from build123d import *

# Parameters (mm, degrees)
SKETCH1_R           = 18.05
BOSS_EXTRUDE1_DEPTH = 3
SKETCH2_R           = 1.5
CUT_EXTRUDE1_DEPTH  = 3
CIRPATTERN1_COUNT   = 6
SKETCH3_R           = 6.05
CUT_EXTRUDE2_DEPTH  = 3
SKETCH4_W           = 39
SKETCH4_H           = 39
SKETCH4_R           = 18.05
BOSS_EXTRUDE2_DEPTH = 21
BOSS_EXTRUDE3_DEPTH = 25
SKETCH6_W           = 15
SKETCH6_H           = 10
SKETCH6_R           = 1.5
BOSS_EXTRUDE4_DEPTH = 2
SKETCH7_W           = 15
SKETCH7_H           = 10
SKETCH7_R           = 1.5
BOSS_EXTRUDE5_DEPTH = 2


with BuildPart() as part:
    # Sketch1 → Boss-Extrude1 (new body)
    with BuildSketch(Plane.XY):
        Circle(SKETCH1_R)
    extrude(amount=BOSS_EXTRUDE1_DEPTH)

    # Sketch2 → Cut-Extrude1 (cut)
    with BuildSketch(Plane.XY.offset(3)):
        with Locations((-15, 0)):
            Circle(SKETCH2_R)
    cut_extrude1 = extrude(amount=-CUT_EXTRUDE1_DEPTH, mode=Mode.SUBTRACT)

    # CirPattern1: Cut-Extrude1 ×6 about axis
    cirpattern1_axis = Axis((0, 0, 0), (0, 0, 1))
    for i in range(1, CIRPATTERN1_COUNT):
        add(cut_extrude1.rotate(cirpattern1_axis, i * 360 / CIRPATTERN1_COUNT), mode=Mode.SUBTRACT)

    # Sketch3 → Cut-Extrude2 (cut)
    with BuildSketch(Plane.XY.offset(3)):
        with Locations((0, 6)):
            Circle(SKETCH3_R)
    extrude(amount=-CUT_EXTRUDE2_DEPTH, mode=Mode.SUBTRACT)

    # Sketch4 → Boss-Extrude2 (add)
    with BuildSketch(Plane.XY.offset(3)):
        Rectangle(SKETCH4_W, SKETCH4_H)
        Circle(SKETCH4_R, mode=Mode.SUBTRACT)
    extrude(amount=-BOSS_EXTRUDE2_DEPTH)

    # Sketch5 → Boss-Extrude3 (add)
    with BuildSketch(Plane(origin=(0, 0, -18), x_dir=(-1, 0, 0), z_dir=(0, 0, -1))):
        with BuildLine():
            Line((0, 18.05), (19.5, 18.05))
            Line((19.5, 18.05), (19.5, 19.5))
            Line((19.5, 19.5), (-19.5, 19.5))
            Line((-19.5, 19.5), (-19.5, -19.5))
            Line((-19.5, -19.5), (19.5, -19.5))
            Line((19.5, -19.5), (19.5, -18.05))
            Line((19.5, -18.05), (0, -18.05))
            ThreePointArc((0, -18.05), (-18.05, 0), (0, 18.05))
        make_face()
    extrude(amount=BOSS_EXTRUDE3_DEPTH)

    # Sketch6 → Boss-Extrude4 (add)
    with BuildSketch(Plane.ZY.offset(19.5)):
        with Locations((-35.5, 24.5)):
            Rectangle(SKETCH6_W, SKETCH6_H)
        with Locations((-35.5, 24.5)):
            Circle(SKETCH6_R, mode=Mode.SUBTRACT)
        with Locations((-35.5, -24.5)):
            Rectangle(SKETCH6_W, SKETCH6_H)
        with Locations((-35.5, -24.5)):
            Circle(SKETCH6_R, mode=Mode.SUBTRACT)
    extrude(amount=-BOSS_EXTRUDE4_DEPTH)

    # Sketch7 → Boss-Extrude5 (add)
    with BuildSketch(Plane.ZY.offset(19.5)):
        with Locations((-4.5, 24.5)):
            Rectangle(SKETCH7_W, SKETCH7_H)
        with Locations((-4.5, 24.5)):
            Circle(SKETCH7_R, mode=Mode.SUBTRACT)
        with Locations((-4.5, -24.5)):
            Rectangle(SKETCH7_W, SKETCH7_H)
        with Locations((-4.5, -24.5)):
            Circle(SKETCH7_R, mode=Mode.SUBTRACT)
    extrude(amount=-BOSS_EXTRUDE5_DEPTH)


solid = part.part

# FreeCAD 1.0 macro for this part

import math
import FreeCAD as App
import Part
import Sketcher
from FreeCAD import Vector
Q = App.Units.Quantity


def add_polygon(sketch, points):
    """Adds a closed chain of lines whose ends are joined by coincident constraints."""
    first, n = sketch.GeometryCount, len(points)
    for a, b in zip(points, points[1:] + points[:1]):
        sketch.addGeometry(Part.LineSegment(App.Vector(*a, 0), App.Vector(*b, 0)), False)
    for i in range(n):
        sketch.addConstraint(Sketcher.Constraint("Coincident", first + i, 2, first + (i + 1) % n, 1))

doc = App.newDocument("Part")
body = doc.addObject("PartDesign::Body", "Body")

# Sketch on XY plane
sketch1 = doc.addObject("Sketcher::SketchObject", "Sketch")
body.addObject(sketch1)
sketch1.AttachmentSupport = (doc.XY_Plane, [""])
sketch1.MapMode = "FlatFace"
sketch1.addGeometry(Part.Circle(Vector(0, 0, 0), Vector(0, 0, 1), 18), False)
sketch1.addConstraint([
    Sketcher.Constraint("Coincident", 0, 3, -1, 1),
    Sketcher.Constraint("Diameter", 0, Q("36.1 mm")),
])
pad1 = doc.addObject("PartDesign::Pad", "Pad")
body.addObject(pad1)
pad1.Profile = sketch1
pad1.Length = 3

# Sketch on XY plane
sketch2 = doc.addObject("Sketcher::SketchObject", "Sketch001")
body.addObject(sketch2)
sketch2.AttachmentSupport = (doc.XY_Plane, [""])
sketch2.MapMode = "FlatFace"
sketch2.AttachmentOffset = App.Placement(Vector(0, 0, 3), App.Rotation())
sketch2.addGeometry(Part.Circle(Vector(-15, 0, 0), Vector(0, 0, 1), 1.5), False)
sketch2.addConstraint([
    Sketcher.Constraint("PointOnObject", 0, 3, -1),
    Sketcher.Constraint("Diameter", 0, Q("3 mm")),
    Sketcher.Constraint("DistanceX", 0, 3, -1, 1, Q("15 mm")),
])
pocket1 = doc.addObject("PartDesign::Pocket", "Pocket")
body.addObject(pocket1)
pocket1.Profile = sketch2
pocket1.Length = 3
doc.recompute()

polarpattern = doc.addObject("PartDesign::PolarPattern", "PolarPattern")
body.addObject(polarpattern)
polarpattern.Originals = [pocket1]
polarpattern.Axis = (doc.Z_Axis, [""])
polarpattern.Angle = 360
polarpattern.Occurrences = 6
body.Tip = polarpattern

# Sketch on XY plane
sketch3 = doc.addObject("Sketcher::SketchObject", "Sketch002")
body.addObject(sketch3)
sketch3.AttachmentSupport = (doc.XY_Plane, [""])
sketch3.MapMode = "FlatFace"
sketch3.AttachmentOffset = App.Placement(Vector(0, 0, 3), App.Rotation())
sketch3.addGeometry(Part.Circle(Vector(0, 6, 0), Vector(0, 0, 1), 6), False)
sketch3.addConstraint([
    Sketcher.Constraint("PointOnObject", 0, 3, -2),
    Sketcher.Constraint("Diameter", 0, Q("12.1 mm")),
    Sketcher.Constraint("DistanceY", -1, 1, 0, 3, Q("6 mm")),
])
pocket2 = doc.addObject("PartDesign::Pocket", "Pocket001")
body.addObject(pocket2)
pocket2.Profile = sketch3
pocket2.Length = 3

# Sketch on XY plane
sketch4 = doc.addObject("Sketcher::SketchObject", "Sketch003")
body.addObject(sketch4)
sketch4.AttachmentSupport = (doc.XY_Plane, [""])
sketch4.MapMode = "FlatFace"
sketch4.AttachmentOffset = App.Placement(Vector(0, 0, 3), App.Rotation())
add_polygon(sketch4, [(-20, 20), (-20, -20), (20, -20), (20, 20)])  # lines 0-3
sketch4.addGeometry(Part.Circle(Vector(0, 0, 0), Vector(0, 0, 1), 18), False)  # 4
sketch4.addConstraint([
    Sketcher.Constraint("Vertical", 0),
    Sketcher.Constraint("Horizontal", 1),
    Sketcher.Constraint("Vertical", 2),
    Sketcher.Constraint("Horizontal", 3),
    Sketcher.Constraint("Coincident", 4, 3, -1, 1),
    Sketcher.Constraint("Symmetric", 0, 2, 2, 2, -1, 1),
    Sketcher.Constraint("Equal", 3, 0),
    Sketcher.Constraint("Diameter", 4, Q("36.1 mm")),
    Sketcher.Constraint("DistanceX", 1, 1, 1, 2, Q("39 mm")),
])
pad2 = doc.addObject("PartDesign::Pad", "Pad001")
body.addObject(pad2)
pad2.Profile = sketch4
pad2.Length = 21
pad2.Reversed = True

# Sketch on XY plane
sketch5 = doc.addObject("Sketcher::SketchObject", "Sketch004")
body.addObject(sketch5)
sketch5.AttachmentSupport = (doc.XY_Plane, [""])
sketch5.MapMode = "FlatFace"
sketch5.AttachmentOffset = App.Placement(Vector(0, 0, -18), App.Rotation())
sketch5.addGeometry([
    Part.LineSegment(Vector(0, 18.1, 0), Vector(-19.5, 18.1, 0)),  # 0
    Part.LineSegment(Vector(-19.5, 18.1, 0), Vector(-19.5, 19.5, 0)),  # 1
    Part.LineSegment(Vector(-19.5, 19.5, 0), Vector(19.5, 19.5, 0)),  # 2
    Part.LineSegment(Vector(19.5, 19.5, 0), Vector(19.5, -19.5, 0)),  # 3
    Part.LineSegment(Vector(19.5, -19.5, 0), Vector(-19.5, -19.5, 0)),  # 4
    Part.LineSegment(Vector(-19.5, -19.5, 0), Vector(-19.5, -18.1, 0)),  # 5
    Part.LineSegment(Vector(-19.5, -18.1, 0), Vector(0, -18.1, 0)),  # 6
    Part.ArcOfCircle(Part.Circle(Vector(0, 0, 0), Vector(0, 0, 1), 18.1), math.radians(-90), math.radians(90)),  # 7
], False)
sketch5.addConstraint([
    Sketcher.Constraint("Coincident", 0, 2, 1, 1),
    Sketcher.Constraint("Coincident", 1, 2, 2, 1),
    Sketcher.Constraint("Coincident", 2, 2, 3, 1),
    Sketcher.Constraint("Coincident", 3, 2, 4, 1),
    Sketcher.Constraint("Coincident", 4, 2, 5, 1),
    Sketcher.Constraint("Coincident", 5, 2, 6, 1),
    Sketcher.Constraint("Tangent", 6, 2, 7, 1),
    Sketcher.Constraint("Tangent", 7, 2, 0, 1),
    Sketcher.Constraint("Horizontal", 0),
    Sketcher.Constraint("Vertical", 1),
    Sketcher.Constraint("Horizontal", 2),
    Sketcher.Constraint("Vertical", 3),
    Sketcher.Constraint("Horizontal", 4),
    Sketcher.Constraint("Vertical", 5),
    Sketcher.Constraint("Horizontal", 6),
    Sketcher.Constraint("Coincident", 7, 3, -1, 1),
    Sketcher.Constraint("Symmetric", 1, 2, 3, 2, -1, 1),
    Sketcher.Constraint("Vertical", 1, 2, 4, 2),
    Sketcher.Constraint("Equal", 4, 3),
    Sketcher.Constraint("DistanceX", 2, 1, 2, 2, Q("39 mm")),
    Sketcher.Constraint("Radius", 7, Q("18.05 mm")),
])
pad3 = doc.addObject("PartDesign::Pad", "Pad002")
body.addObject(pad3)
pad3.Profile = sketch5
pad3.Length = 25
pad3.Reversed = True

# Sketch on YZ plane
sketch6 = doc.addObject("Sketcher::SketchObject", "Sketch005")
body.addObject(sketch6)
sketch6.AttachmentSupport = (doc.YZ_Plane, [""])
sketch6.MapMode = "FlatFace"
sketch6.AttachmentOffset = App.Placement(Vector(0, 0, -19.5), App.Rotation())
add_polygon(sketch6, [(29.5, -43), (19.5, -43), (19.5, -28), (29.5, -28)])  # lines 0-3
sketch6.addGeometry(Part.Circle(Vector(24.5, -35.5, 0), Vector(0, 0, 1), 1.5), False)  # 4
add_polygon(sketch6, [(-19.5, -43), (-29.5, -43), (-29.5, -28), (-19.5, -28)])  # lines 5-8
sketch6.addGeometry(Part.Circle(Vector(-24.5, -35.5, 0), Vector(0, 0, 1), 1.5), False)  # 9
sketch6.addConstraint([
    Sketcher.Constraint("Horizontal", 0),
    Sketcher.Constraint("Vertical", 1),
    Sketcher.Constraint("Horizontal", 2),
    Sketcher.Constraint("Vertical", 3),
    Sketcher.Constraint("Horizontal", 5),
    Sketcher.Constraint("Vertical", 6),
    Sketcher.Constraint("Horizontal", 7),
    Sketcher.Constraint("Vertical", 8),
    Sketcher.Constraint("Equal", 4, 9),
    Sketcher.Constraint("Symmetric", 4, 3, 9, 3, -2),
    Sketcher.Constraint("Symmetric", 3, 2, 5, 2, -2),
    Sketcher.Constraint("Symmetric", 1, 2, 7, 2, -2),
    Sketcher.Constraint("Diameter", 4, Q("3 mm")),
    Sketcher.Constraint("DistanceX", 0, 2, 0, 1, Q("10 mm")),
    Sketcher.Constraint("DistanceY", 1, 1, 1, 2, Q("15 mm")),
    Sketcher.Constraint("DistanceY", 0, 2, -1, 1, Q("43 mm")),
    Sketcher.Constraint("DistanceX", 9, 3, 4, 3, Q("49 mm")),
    Sketcher.Constraint("DistanceX", 0, 2, 4, 3, Q("5 mm")),
    Sketcher.Constraint("DistanceY", 4, 3, -1, 1, Q("35.5 mm")),
])
pad4 = doc.addObject("PartDesign::Pad", "Pad003")
body.addObject(pad4)
pad4.Profile = sketch6
pad4.Length = 2

# Sketch on YZ plane
sketch7 = doc.addObject("Sketcher::SketchObject", "Sketch006")
body.addObject(sketch7)
sketch7.AttachmentSupport = (doc.YZ_Plane, [""])
sketch7.MapMode = "FlatFace"
sketch7.AttachmentOffset = App.Placement(Vector(0, 0, -19.5), App.Rotation())
add_polygon(sketch7, [(29.5, -12), (19.5, -12), (19.5, 3), (29.5, 3)])  # lines 0-3
sketch7.addGeometry(Part.Circle(Vector(24.5, -4.5, 0), Vector(0, 0, 1), 1.5), False)  # 4
add_polygon(sketch7, [(-19.5, -12), (-29.5, -12), (-29.5, 3), (-19.5, 3)])  # lines 5-8
sketch7.addGeometry(Part.Circle(Vector(-24.5, -4.5, 0), Vector(0, 0, 1), 1.5), False)  # 9
sketch7.addConstraint([
    Sketcher.Constraint("Horizontal", 0),
    Sketcher.Constraint("Vertical", 1),
    Sketcher.Constraint("Horizontal", 2),
    Sketcher.Constraint("Vertical", 3),
    Sketcher.Constraint("Horizontal", 5),
    Sketcher.Constraint("Vertical", 6),
    Sketcher.Constraint("Horizontal", 7),
    Sketcher.Constraint("Vertical", 8),
    Sketcher.Constraint("Equal", 4, 9),
    Sketcher.Constraint("Symmetric", 4, 3, 9, 3, -2),
    Sketcher.Constraint("Symmetric", 3, 2, 5, 2, -2),
    Sketcher.Constraint("Symmetric", 1, 2, 7, 2, -2),
    Sketcher.Constraint("Diameter", 4, Q("3 mm")),
    Sketcher.Constraint("DistanceX", 0, 2, 0, 1, Q("10 mm")),
    Sketcher.Constraint("DistanceY", 1, 1, 1, 2, Q("15 mm")),
    Sketcher.Constraint("DistanceY", 0, 2, -1, 1, Q("12 mm")),
    Sketcher.Constraint("DistanceX", 9, 3, 4, 3, Q("49 mm")),
    Sketcher.Constraint("DistanceX", 0, 2, 4, 3, Q("5 mm")),
    Sketcher.Constraint("DistanceY", 4, 3, -1, 1, Q("4.5 mm")),
])
pad5 = doc.addObject("PartDesign::Pad", "Pad004")
body.addObject(pad5)
pad5.Profile = sketch7
pad5.Length = 2

doc.recompute()
